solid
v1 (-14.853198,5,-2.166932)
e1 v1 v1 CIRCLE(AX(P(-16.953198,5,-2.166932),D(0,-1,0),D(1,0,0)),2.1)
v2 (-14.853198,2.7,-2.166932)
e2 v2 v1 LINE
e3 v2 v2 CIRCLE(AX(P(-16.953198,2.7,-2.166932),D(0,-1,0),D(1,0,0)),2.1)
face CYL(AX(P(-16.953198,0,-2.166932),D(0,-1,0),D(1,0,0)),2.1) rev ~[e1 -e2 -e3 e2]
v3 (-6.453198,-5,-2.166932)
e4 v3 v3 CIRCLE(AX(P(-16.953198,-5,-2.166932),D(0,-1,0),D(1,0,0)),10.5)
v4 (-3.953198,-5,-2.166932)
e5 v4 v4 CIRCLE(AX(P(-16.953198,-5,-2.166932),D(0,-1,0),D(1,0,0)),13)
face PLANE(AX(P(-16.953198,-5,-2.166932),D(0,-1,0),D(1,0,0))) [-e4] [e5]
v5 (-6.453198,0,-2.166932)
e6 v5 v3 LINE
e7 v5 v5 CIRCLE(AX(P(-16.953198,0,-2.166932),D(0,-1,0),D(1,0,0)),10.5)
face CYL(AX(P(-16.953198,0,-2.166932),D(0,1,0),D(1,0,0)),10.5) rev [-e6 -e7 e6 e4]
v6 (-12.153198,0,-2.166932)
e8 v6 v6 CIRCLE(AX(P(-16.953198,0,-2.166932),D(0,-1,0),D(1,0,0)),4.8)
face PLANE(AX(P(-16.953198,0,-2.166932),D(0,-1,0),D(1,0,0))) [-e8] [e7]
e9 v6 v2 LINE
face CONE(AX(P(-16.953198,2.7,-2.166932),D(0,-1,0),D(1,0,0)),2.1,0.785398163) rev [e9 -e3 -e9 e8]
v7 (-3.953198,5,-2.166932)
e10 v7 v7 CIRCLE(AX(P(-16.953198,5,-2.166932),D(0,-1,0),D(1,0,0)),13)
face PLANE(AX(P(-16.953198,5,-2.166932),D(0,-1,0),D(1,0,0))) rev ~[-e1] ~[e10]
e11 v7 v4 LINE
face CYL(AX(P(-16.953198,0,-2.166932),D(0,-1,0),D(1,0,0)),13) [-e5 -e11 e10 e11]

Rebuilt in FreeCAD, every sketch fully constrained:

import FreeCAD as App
import Part
import Sketcher

V = App.Vector


def edges_at(feature, points):
    """Names of the edges that pass closest to the given points."""
    edges = feature.Shape.Edges
    near = lambda p: min(range(len(edges)), key=lambda i: edges[i].distToShape(Part.Vertex(*p))[0])
    return sorted({f"Edge{near(p) + 1}" for p in points})

doc = App.newDocument("Part")
params = doc.addObject("Spreadsheet::Sheet", "Params")
for row, (alias, value) in enumerate([
    ("sketch1_diameter", "26 mm"),
    ("sketch1_diameter2", "21 mm"),
    ("pad1_length", "5 mm"),
    ("sketch2_diameter", "26 mm"),
    ("sketch2_diameter2", "4.2 mm"),
    ("pad2_length", "5 mm"),
    ("chamfer_size", "2.7 mm"),
    ("chamfer_size2", "2.7 mm"),
], start=1):
    params.set(f"A{row}", alias)
    params.set(f"B{row}", "=" + value)
    params.setAlias(f"B{row}", alias)

body = doc.addObject("PartDesign::Body", "Body")

# Sketch on XZ plane
sketch1 = body.newObject("Sketcher::SketchObject", "Sketch")
sketch1.AttachmentSupport = (doc.getObject("XZ_Plane"), [""])
sketch1.MapMode = "FlatFace"
sketch1.addGeometry(Part.Circle(V(-17, -2, 0), V(0, 0, 1), 13), False)
sketch1.addGeometry(Part.Circle(V(-17, -2, 0), V(0, 0, 1), 10), False)
sketch1.addConstraint(Sketcher.Constraint("Coincident", 1, 3, 0, 3))
sketch1.addConstraint(Sketcher.Constraint("Diameter", 0, 26.0))
sketch1.addConstraint(Sketcher.Constraint("Diameter", 1, 21.0))
sketch1.addConstraint(Sketcher.Constraint("DistanceX", 0, 3, -1, 1, 16.953198))
sketch1.addConstraint(Sketcher.Constraint("DistanceY", 0, 3, -1, 1, 2.166932))
sketch1.setExpression("Constraints[1]", "Params.sketch1_diameter")
sketch1.setExpression("Constraints[2]", "Params.sketch1_diameter2")
pad1 = body.newObject("PartDesign::Pad", "Pad")
pad1.Profile = sketch1
pad1.setExpression("Length", "Params.pad1_length")

# Sketch on XZ plane
sketch2 = body.newObject("Sketcher::SketchObject", "Sketch001")
sketch2.AttachmentSupport = (doc.getObject("XZ_Plane"), [""])
sketch2.MapMode = "FlatFace"
sketch2.addGeometry(Part.Circle(V(-17, -2.2, 0), V(0, 0, 1), 13), False)
sketch2.addGeometry(Part.Circle(V(-17, -2.2, 0), V(0, 0, 1), 2.1), False)
sketch2.addConstraint(Sketcher.Constraint("Coincident", 1, 3, 0, 3))
sketch2.addConstraint(Sketcher.Constraint("Diameter", 0, 26.0))
sketch2.addConstraint(Sketcher.Constraint("Diameter", 1, 4.2))
sketch2.addConstraint(Sketcher.Constraint("DistanceX", 0, 3, -1, 1, 16.953198))
sketch2.addConstraint(Sketcher.Constraint("DistanceY", 0, 3, -1, 1, 2.166932))
sketch2.setExpression("Constraints[1]", "Params.sketch2_diameter")
sketch2.setExpression("Constraints[2]", "Params.sketch2_diameter2")
pad2 = body.newObject("PartDesign::Pad", "Pad001")
pad2.Profile = sketch2
pad2.setExpression("Length", "Params.pad2_length")
pad2.Reversed = True
doc.recompute()

chamfer = body.newObject("PartDesign::Chamfer", "Chamfer")
chamfer.Base = (pad2, edges_at(pad2, [(-19.053, 0, -2.167)]))
chamfer.ChamferType = "Two distances"
chamfer.setExpression("Size", "Params.chamfer_size")
chamfer.setExpression("Size2", "Params.chamfer_size2")

doc.recompute()
